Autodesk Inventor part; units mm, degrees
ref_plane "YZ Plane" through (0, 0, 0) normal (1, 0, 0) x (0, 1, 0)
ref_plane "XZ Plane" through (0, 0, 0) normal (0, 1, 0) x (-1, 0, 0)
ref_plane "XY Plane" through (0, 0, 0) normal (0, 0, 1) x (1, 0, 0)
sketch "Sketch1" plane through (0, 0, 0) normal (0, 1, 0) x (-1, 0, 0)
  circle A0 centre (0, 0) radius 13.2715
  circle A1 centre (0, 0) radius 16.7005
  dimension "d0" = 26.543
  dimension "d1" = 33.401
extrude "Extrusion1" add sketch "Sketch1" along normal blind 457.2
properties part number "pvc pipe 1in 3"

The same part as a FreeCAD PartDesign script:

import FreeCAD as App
import Part
import Sketcher

V = App.Vector
Q = App.Units.Quantity

doc = App.newDocument("Part")
params = doc.addObject("Spreadsheet::Sheet", "Params")
for row, (alias, value) in enumerate([
    ("sketch1_diameter", "1.315 in"),
    ("sketch1_diameter2", "1.045 in"),
    ("pad1_length", "18 in"),
], start=1):
    params.set(f"A{row}", alias)
    params.set(f"B{row}", "=" + value)
    params.setAlias(f"B{row}", alias)

body = doc.addObject("PartDesign::Body", "Body")

# Sketch on XZ plane
sketch1 = body.newObject("Sketcher::SketchObject", "Sketch")
sketch1.AttachmentSupport = (doc.getObject("XZ_Plane"), [""])
sketch1.MapMode = "FlatFace"
sketch1.addGeometry([
    Part.Circle(V(0, 0, 0), V(0, 0, 1), 16.7005),
    Part.Circle(V(0, 0, 0), V(0, 0, 1), 13.2715),
], False)
sketch1.addConstraint([
    Sketcher.Constraint("Coincident", 0, 3, -1, 1),
    Sketcher.Constraint("Coincident", 1, 3, -1, 1),
    Sketcher.Constraint("Diameter", 0, Q("1.315 in")),
    Sketcher.Constraint("Diameter", 1, Q("1.045 in")),
])
sketch1.setExpression("Constraints[2]", "Params.sketch1_diameter")
sketch1.setExpression("Constraints[3]", "Params.sketch1_diameter2")
pad1 = body.newObject("PartDesign::Pad", "Pad")
pad1.Profile = sketch1
pad1.setExpression("Length", "Params.pad1_length")
pad1.Reversed = True

doc.recompute()
